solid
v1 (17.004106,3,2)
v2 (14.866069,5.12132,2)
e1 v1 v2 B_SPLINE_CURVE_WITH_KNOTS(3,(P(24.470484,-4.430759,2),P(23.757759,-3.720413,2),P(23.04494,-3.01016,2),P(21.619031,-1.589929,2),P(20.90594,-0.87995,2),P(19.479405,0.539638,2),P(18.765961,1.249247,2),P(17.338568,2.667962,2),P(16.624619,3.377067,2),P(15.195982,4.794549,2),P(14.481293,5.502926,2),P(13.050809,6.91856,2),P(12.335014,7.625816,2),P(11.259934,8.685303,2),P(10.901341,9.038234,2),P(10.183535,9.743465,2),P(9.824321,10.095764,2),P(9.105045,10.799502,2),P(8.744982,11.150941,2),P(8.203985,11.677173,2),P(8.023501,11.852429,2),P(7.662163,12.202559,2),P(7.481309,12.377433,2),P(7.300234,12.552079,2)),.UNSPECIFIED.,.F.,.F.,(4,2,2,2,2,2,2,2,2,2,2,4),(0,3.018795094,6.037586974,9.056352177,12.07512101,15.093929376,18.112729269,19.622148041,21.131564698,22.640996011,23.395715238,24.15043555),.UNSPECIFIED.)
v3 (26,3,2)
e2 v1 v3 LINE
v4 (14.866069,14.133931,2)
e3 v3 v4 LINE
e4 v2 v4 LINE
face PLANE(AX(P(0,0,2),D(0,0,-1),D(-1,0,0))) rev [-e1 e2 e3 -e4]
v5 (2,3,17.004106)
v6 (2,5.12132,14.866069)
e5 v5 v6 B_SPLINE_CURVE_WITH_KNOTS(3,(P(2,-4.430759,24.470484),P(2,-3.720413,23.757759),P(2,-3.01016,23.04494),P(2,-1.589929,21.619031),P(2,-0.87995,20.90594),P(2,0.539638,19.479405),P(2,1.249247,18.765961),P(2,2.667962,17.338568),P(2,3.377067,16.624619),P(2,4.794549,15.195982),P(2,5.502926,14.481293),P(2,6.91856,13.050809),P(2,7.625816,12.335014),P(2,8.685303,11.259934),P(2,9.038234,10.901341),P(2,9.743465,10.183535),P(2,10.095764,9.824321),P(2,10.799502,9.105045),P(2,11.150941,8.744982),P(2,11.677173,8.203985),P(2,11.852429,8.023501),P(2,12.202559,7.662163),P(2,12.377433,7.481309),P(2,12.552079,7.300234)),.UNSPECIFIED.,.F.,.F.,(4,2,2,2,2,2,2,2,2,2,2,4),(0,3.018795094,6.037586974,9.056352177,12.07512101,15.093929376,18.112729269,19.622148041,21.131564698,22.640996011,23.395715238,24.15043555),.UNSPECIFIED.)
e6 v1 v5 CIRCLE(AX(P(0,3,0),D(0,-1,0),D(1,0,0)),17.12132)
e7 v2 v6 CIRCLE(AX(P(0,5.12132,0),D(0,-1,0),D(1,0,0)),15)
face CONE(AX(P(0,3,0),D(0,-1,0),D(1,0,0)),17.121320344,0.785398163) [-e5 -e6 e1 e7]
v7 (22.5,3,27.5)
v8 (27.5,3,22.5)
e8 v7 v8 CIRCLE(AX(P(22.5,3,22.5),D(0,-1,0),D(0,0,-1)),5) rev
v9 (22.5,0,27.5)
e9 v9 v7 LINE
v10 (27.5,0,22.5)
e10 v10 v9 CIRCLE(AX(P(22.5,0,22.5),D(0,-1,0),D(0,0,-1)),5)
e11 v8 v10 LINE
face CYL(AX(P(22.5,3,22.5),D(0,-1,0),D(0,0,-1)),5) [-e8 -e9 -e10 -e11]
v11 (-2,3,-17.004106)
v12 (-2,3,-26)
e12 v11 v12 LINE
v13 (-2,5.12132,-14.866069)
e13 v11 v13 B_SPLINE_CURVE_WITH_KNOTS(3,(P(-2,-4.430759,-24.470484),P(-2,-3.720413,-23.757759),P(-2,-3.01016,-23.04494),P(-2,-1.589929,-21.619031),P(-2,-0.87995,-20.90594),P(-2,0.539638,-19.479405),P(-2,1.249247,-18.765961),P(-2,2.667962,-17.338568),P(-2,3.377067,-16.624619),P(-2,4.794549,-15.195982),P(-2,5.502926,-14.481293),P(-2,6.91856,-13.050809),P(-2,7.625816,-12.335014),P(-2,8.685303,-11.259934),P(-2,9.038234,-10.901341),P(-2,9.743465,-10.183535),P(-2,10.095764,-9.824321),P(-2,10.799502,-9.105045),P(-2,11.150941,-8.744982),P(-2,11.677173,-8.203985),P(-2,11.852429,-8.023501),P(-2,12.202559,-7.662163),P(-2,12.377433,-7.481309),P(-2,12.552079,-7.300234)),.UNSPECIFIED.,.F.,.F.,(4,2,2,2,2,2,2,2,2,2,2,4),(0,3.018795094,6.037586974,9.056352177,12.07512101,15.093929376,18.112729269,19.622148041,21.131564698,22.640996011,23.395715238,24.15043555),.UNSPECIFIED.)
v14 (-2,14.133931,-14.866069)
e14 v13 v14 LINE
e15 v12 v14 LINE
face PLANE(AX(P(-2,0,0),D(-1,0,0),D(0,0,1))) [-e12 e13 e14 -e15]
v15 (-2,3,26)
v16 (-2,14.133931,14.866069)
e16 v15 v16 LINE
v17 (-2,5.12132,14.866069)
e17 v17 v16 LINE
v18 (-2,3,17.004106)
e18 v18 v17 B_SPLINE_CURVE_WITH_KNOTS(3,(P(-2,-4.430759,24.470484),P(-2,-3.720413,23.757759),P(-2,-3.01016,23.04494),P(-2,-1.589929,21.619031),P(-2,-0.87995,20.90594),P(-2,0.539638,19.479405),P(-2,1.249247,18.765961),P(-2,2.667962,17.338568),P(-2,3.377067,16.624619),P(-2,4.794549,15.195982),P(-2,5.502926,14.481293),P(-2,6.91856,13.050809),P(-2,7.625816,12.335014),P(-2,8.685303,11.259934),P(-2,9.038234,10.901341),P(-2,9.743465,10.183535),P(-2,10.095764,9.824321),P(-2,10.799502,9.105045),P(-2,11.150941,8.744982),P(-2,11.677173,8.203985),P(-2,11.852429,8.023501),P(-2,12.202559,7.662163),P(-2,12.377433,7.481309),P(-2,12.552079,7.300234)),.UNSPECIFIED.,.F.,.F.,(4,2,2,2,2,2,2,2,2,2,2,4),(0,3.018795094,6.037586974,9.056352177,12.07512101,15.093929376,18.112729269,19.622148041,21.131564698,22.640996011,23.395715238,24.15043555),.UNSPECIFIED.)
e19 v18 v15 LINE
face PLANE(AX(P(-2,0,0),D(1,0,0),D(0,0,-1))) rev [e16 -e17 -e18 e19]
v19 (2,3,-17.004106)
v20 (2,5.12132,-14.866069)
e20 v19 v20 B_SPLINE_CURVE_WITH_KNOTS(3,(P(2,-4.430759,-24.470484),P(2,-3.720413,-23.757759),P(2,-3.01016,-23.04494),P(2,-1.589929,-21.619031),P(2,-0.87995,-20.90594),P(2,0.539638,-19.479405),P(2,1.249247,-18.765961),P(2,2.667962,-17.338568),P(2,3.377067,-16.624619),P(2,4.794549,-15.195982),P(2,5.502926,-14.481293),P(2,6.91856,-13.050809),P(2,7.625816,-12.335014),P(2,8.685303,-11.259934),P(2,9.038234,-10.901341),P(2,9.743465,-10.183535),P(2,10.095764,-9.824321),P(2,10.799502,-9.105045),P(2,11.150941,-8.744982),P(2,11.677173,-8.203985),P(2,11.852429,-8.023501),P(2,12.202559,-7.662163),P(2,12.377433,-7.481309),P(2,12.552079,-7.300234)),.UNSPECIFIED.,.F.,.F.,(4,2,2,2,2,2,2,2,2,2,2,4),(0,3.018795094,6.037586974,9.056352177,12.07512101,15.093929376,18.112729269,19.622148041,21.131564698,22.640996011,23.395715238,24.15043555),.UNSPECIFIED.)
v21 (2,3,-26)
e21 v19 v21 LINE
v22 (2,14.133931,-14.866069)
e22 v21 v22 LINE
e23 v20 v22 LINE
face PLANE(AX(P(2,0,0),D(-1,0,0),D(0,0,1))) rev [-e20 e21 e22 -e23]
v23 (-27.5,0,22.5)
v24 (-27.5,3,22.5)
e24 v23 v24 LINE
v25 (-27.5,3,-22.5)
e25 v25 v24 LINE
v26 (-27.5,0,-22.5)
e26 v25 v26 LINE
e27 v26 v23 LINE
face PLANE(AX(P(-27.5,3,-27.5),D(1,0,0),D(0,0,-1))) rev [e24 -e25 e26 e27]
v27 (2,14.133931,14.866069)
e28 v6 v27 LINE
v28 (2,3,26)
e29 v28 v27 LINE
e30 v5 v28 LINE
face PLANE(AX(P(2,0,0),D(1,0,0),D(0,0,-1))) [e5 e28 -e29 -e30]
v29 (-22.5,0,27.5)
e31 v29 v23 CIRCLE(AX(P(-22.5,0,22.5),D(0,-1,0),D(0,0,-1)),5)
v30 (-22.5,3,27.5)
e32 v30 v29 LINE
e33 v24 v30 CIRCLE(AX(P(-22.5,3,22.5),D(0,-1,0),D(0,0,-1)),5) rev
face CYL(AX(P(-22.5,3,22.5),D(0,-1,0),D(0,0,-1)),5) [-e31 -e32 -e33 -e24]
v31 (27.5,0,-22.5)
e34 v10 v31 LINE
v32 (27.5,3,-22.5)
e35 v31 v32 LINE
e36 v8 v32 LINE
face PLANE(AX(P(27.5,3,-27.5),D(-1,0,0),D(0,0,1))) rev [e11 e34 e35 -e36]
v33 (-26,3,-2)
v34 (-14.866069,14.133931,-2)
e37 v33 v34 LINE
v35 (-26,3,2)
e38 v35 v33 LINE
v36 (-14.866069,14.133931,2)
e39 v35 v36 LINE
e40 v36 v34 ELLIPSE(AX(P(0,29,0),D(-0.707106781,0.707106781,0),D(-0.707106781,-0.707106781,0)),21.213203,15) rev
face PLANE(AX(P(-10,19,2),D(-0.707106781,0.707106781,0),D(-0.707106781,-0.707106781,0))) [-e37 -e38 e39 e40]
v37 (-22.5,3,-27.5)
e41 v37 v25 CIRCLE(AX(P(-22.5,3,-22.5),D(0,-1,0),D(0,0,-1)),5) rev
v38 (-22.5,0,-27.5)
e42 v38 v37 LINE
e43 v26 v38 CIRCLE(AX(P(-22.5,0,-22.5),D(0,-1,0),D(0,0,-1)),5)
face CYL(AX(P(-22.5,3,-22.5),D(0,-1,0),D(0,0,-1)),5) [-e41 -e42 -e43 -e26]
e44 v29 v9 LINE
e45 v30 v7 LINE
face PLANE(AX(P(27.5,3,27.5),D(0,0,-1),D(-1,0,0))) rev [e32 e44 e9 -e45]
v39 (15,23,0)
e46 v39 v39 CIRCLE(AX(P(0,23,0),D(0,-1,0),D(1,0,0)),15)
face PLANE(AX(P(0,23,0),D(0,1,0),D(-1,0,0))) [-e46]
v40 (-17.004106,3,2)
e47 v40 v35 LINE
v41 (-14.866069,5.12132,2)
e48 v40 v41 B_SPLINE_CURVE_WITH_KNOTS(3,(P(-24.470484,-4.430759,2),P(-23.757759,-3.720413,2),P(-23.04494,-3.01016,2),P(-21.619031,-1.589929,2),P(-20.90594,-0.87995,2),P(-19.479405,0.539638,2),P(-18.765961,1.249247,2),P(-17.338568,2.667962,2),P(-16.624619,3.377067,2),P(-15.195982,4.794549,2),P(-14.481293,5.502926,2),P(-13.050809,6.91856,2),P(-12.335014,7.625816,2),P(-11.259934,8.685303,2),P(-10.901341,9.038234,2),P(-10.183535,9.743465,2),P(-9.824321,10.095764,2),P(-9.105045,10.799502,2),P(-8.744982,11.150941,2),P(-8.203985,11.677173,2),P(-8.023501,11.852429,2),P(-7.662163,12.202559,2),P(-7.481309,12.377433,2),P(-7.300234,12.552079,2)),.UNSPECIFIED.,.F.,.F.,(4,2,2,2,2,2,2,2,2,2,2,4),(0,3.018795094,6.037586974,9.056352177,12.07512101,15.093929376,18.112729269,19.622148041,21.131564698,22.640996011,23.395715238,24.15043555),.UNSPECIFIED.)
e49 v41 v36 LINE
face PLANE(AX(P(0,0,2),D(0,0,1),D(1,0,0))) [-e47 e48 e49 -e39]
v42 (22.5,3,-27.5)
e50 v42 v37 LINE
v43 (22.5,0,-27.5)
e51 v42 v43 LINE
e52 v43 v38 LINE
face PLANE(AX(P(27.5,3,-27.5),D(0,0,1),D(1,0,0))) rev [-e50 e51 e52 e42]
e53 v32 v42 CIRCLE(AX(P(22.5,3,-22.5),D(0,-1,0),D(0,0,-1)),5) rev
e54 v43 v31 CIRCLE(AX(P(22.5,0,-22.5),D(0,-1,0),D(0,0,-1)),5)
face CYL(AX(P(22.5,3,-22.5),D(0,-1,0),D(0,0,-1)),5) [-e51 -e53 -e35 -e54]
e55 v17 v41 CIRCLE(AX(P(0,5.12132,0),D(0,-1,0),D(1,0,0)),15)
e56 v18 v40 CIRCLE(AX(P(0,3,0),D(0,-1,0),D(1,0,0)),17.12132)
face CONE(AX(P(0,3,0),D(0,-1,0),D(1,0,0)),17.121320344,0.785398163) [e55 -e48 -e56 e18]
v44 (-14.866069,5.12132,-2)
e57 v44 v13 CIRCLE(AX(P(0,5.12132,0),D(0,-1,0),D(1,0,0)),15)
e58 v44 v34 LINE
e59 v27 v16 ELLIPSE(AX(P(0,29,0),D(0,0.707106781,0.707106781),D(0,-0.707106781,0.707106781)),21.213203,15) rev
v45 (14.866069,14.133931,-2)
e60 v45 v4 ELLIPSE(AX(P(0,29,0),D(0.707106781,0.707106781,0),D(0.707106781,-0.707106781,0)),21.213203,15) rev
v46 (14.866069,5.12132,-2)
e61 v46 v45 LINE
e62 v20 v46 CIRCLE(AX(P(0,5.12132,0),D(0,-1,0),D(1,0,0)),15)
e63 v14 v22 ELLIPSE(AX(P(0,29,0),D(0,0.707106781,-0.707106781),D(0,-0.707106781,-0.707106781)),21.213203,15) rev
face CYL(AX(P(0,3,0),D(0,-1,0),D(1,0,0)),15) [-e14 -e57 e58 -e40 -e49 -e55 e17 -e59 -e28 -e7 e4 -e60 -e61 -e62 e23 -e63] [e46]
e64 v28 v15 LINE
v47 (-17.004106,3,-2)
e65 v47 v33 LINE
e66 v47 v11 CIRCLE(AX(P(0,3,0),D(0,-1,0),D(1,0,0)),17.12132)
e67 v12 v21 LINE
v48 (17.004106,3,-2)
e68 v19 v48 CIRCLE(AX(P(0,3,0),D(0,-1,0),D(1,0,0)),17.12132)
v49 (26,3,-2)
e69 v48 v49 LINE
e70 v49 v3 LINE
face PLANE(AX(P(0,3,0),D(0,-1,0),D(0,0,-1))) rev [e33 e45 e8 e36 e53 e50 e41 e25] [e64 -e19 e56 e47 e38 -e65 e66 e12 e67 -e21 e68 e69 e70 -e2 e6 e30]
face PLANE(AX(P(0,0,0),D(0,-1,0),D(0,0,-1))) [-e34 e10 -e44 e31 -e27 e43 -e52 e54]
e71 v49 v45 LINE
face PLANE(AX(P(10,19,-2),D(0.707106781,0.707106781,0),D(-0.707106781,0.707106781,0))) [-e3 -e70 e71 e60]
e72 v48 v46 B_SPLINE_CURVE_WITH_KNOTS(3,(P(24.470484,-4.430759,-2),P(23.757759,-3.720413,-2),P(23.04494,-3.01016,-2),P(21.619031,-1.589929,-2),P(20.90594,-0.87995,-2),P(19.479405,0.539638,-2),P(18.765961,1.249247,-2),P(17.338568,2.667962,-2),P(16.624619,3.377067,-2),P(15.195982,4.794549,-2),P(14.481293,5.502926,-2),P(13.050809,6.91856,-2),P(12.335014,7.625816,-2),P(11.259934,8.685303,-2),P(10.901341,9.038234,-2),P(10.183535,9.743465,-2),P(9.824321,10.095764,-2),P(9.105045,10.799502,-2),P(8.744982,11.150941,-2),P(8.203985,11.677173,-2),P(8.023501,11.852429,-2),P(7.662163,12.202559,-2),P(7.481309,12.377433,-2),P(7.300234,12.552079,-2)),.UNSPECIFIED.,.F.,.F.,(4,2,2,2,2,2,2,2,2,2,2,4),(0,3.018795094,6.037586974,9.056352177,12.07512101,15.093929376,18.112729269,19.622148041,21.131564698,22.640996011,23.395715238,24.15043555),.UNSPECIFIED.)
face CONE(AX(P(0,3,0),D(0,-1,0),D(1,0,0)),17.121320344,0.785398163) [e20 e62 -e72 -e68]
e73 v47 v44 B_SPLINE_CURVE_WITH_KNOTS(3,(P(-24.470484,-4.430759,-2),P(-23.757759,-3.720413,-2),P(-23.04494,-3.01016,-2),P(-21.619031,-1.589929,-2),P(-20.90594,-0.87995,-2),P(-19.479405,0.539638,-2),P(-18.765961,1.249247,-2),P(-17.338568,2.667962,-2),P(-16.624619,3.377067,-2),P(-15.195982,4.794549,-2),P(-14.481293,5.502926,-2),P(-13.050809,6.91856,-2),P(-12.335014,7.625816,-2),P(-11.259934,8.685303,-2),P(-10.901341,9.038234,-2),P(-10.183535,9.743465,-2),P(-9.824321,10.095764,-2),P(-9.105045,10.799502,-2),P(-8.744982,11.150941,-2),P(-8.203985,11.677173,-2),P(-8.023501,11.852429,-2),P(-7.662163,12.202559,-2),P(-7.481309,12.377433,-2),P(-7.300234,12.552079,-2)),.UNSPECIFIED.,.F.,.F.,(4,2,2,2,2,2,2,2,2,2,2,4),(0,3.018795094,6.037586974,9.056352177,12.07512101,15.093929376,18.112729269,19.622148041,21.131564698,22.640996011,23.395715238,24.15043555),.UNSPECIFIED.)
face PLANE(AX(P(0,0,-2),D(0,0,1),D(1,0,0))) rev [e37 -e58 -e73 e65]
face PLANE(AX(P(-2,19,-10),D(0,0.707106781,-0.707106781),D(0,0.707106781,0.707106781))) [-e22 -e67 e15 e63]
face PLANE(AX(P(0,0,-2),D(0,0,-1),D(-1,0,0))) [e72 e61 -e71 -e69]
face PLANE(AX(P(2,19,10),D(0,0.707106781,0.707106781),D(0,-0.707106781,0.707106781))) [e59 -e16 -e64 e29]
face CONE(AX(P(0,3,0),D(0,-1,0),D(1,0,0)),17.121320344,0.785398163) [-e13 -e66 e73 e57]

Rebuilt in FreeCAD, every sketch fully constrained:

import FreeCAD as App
import Part
import Sketcher
from FreeCAD import Vector
Q = App.Units.Quantity


def edges_at(feature, points):
    """Names of the edges that pass closest to the given points."""
    edges = feature.Shape.Edges
    near = lambda p: min(range(len(edges)), key=lambda i: edges[i].distToShape(Part.Vertex(*p))[0])
    return sorted({f"Edge{near(p) + 1}" for p in points})


def add_polygon(sketch, points):
    """Adds a closed chain of lines whose ends are joined by coincident constraints."""
    first, n = sketch.GeometryCount, len(points)
    for a, b in zip(points, points[1:] + points[:1]):
        sketch.addGeometry(Part.LineSegment(App.Vector(*a, 0), App.Vector(*b, 0)), False)
    for i in range(n):
        sketch.addConstraint(Sketcher.Constraint("Coincident", first + i, 2, first + (i + 1) % n, 1))

doc = App.newDocument("Part")
body = doc.addObject("PartDesign::Body", "Body")

sketch1 = doc.addObject("Sketcher::SketchObject", "Sketch")
body.addObject(sketch1)
sketch1.AttachmentSupport = (doc.XZ_Plane, [""])
sketch1.MapMode = "FlatFace"
add_polygon(sketch1, [(-27.5, -27.5), (-27.5, 27.5), (27.5, 27.5), (27.5, -27.5)])
sketch1.addConstraint(Sketcher.Constraint("Vertical", 0))
sketch1.addConstraint(Sketcher.Constraint("Horizontal", 1))
sketch1.addConstraint(Sketcher.Constraint("Vertical", 2))
sketch1.addConstraint(Sketcher.Constraint("Horizontal", 3))
sketch1.addConstraint(Sketcher.Constraint("Symmetric", 0, 2, 2, 2, -1, 1))
sketch1.addConstraint(Sketcher.Constraint("Equal", 3, 0))
sketch1.addConstraint(Sketcher.Constraint("DistanceX", 1, 1, 1, 2, 55.0))
pad1 = doc.addObject("PartDesign::Pad", "Pad")
body.addObject(pad1)
pad1.Profile = sketch1
pad1.Length = 3
pad1.Reversed = True

sketch2 = doc.addObject("Sketcher::SketchObject", "Sketch001")
body.addObject(sketch2)
sketch2.AttachmentSupport = (doc.XY_Plane, [""])
sketch2.MapMode = "FlatFace"
add_polygon(sketch2, [(0, 23), (0, 3), (17.12132, 3), (15, 5.12132), (15, 23)])
sketch2.addConstraint(Sketcher.Constraint("Vertical", 0))
sketch2.addConstraint(Sketcher.Constraint("Horizontal", 1))
sketch2.addConstraint(Sketcher.Constraint("Vertical", 3))
sketch2.addConstraint(Sketcher.Constraint("Horizontal", 4))
sketch2.addConstraint(Sketcher.Constraint("PointOnObject", 0, 2, -2))
sketch2.addConstraint(Sketcher.Constraint("DistanceX", 4, 2, 4, 1, 15.0))
sketch2.addConstraint(Sketcher.Constraint("DistanceY", 0, 2, 0, 1, 20.0))
sketch2.addConstraint(Sketcher.Constraint("Angle", 2, Q("135 deg")))
sketch2.addConstraint(Sketcher.Constraint("Distance", 2, 3.0))
sketch2.addConstraint(Sketcher.Constraint("DistanceY", -1, 1, 0, 2, 3.0))
revolution = doc.addObject("PartDesign::Revolution", "Revolution")
body.addObject(revolution)
revolution.Profile = sketch2
revolution.ReferenceAxis = (sketch2, ["V_Axis"])
revolution.Angle = 360

sketch3 = doc.addObject("Sketcher::SketchObject", "Sketch002")
body.addObject(sketch3)
sketch3.AttachmentSupport = (doc.YZ_Plane, [""])
sketch3.MapMode = "FlatFace"
add_polygon(sketch3, [(19, -10), (3, -10), (3, -26)])
sketch3.addConstraint(Sketcher.Constraint("Horizontal", 0))
sketch3.addConstraint(Sketcher.Constraint("Vertical", 1))
sketch3.addConstraint(Sketcher.Constraint("Equal", 0, 1))
sketch3.addConstraint(Sketcher.Constraint("DistanceX", 0, 2, 0, 1, 16.0))
sketch3.addConstraint(Sketcher.Constraint("DistanceX", -1, 1, 0, 2, 3.0))
sketch3.addConstraint(Sketcher.Constraint("DistanceY", 0, 2, -1, 1, 10.0))
pad2 = doc.addObject("PartDesign::Pad", "Pad001")
body.addObject(pad2)
pad2.Profile = sketch3
pad2.Length = 4
pad2.Midplane = True
doc.recompute()

polarpattern = doc.addObject("PartDesign::PolarPattern", "PolarPattern")
body.addObject(polarpattern)
polarpattern.Originals = [pad2]
polarpattern.Axis = (doc.Y_Axis, [""])
polarpattern.Angle = 360
polarpattern.Occurrences = 4
body.Tip = polarpattern
doc.recompute()

fillet = doc.addObject("PartDesign::Fillet", "Fillet")
body.addObject(fillet)
fillet.Base = (polarpattern, edges_at(polarpattern, [
    (-27.5, 1.5, -27.5),
    (27.5, 1.5, -27.5),
    (27.5, 1.5, 27.5),
    (-27.5, 1.5, 27.5),
]))
fillet.Radius = 5

doc.recompute()
